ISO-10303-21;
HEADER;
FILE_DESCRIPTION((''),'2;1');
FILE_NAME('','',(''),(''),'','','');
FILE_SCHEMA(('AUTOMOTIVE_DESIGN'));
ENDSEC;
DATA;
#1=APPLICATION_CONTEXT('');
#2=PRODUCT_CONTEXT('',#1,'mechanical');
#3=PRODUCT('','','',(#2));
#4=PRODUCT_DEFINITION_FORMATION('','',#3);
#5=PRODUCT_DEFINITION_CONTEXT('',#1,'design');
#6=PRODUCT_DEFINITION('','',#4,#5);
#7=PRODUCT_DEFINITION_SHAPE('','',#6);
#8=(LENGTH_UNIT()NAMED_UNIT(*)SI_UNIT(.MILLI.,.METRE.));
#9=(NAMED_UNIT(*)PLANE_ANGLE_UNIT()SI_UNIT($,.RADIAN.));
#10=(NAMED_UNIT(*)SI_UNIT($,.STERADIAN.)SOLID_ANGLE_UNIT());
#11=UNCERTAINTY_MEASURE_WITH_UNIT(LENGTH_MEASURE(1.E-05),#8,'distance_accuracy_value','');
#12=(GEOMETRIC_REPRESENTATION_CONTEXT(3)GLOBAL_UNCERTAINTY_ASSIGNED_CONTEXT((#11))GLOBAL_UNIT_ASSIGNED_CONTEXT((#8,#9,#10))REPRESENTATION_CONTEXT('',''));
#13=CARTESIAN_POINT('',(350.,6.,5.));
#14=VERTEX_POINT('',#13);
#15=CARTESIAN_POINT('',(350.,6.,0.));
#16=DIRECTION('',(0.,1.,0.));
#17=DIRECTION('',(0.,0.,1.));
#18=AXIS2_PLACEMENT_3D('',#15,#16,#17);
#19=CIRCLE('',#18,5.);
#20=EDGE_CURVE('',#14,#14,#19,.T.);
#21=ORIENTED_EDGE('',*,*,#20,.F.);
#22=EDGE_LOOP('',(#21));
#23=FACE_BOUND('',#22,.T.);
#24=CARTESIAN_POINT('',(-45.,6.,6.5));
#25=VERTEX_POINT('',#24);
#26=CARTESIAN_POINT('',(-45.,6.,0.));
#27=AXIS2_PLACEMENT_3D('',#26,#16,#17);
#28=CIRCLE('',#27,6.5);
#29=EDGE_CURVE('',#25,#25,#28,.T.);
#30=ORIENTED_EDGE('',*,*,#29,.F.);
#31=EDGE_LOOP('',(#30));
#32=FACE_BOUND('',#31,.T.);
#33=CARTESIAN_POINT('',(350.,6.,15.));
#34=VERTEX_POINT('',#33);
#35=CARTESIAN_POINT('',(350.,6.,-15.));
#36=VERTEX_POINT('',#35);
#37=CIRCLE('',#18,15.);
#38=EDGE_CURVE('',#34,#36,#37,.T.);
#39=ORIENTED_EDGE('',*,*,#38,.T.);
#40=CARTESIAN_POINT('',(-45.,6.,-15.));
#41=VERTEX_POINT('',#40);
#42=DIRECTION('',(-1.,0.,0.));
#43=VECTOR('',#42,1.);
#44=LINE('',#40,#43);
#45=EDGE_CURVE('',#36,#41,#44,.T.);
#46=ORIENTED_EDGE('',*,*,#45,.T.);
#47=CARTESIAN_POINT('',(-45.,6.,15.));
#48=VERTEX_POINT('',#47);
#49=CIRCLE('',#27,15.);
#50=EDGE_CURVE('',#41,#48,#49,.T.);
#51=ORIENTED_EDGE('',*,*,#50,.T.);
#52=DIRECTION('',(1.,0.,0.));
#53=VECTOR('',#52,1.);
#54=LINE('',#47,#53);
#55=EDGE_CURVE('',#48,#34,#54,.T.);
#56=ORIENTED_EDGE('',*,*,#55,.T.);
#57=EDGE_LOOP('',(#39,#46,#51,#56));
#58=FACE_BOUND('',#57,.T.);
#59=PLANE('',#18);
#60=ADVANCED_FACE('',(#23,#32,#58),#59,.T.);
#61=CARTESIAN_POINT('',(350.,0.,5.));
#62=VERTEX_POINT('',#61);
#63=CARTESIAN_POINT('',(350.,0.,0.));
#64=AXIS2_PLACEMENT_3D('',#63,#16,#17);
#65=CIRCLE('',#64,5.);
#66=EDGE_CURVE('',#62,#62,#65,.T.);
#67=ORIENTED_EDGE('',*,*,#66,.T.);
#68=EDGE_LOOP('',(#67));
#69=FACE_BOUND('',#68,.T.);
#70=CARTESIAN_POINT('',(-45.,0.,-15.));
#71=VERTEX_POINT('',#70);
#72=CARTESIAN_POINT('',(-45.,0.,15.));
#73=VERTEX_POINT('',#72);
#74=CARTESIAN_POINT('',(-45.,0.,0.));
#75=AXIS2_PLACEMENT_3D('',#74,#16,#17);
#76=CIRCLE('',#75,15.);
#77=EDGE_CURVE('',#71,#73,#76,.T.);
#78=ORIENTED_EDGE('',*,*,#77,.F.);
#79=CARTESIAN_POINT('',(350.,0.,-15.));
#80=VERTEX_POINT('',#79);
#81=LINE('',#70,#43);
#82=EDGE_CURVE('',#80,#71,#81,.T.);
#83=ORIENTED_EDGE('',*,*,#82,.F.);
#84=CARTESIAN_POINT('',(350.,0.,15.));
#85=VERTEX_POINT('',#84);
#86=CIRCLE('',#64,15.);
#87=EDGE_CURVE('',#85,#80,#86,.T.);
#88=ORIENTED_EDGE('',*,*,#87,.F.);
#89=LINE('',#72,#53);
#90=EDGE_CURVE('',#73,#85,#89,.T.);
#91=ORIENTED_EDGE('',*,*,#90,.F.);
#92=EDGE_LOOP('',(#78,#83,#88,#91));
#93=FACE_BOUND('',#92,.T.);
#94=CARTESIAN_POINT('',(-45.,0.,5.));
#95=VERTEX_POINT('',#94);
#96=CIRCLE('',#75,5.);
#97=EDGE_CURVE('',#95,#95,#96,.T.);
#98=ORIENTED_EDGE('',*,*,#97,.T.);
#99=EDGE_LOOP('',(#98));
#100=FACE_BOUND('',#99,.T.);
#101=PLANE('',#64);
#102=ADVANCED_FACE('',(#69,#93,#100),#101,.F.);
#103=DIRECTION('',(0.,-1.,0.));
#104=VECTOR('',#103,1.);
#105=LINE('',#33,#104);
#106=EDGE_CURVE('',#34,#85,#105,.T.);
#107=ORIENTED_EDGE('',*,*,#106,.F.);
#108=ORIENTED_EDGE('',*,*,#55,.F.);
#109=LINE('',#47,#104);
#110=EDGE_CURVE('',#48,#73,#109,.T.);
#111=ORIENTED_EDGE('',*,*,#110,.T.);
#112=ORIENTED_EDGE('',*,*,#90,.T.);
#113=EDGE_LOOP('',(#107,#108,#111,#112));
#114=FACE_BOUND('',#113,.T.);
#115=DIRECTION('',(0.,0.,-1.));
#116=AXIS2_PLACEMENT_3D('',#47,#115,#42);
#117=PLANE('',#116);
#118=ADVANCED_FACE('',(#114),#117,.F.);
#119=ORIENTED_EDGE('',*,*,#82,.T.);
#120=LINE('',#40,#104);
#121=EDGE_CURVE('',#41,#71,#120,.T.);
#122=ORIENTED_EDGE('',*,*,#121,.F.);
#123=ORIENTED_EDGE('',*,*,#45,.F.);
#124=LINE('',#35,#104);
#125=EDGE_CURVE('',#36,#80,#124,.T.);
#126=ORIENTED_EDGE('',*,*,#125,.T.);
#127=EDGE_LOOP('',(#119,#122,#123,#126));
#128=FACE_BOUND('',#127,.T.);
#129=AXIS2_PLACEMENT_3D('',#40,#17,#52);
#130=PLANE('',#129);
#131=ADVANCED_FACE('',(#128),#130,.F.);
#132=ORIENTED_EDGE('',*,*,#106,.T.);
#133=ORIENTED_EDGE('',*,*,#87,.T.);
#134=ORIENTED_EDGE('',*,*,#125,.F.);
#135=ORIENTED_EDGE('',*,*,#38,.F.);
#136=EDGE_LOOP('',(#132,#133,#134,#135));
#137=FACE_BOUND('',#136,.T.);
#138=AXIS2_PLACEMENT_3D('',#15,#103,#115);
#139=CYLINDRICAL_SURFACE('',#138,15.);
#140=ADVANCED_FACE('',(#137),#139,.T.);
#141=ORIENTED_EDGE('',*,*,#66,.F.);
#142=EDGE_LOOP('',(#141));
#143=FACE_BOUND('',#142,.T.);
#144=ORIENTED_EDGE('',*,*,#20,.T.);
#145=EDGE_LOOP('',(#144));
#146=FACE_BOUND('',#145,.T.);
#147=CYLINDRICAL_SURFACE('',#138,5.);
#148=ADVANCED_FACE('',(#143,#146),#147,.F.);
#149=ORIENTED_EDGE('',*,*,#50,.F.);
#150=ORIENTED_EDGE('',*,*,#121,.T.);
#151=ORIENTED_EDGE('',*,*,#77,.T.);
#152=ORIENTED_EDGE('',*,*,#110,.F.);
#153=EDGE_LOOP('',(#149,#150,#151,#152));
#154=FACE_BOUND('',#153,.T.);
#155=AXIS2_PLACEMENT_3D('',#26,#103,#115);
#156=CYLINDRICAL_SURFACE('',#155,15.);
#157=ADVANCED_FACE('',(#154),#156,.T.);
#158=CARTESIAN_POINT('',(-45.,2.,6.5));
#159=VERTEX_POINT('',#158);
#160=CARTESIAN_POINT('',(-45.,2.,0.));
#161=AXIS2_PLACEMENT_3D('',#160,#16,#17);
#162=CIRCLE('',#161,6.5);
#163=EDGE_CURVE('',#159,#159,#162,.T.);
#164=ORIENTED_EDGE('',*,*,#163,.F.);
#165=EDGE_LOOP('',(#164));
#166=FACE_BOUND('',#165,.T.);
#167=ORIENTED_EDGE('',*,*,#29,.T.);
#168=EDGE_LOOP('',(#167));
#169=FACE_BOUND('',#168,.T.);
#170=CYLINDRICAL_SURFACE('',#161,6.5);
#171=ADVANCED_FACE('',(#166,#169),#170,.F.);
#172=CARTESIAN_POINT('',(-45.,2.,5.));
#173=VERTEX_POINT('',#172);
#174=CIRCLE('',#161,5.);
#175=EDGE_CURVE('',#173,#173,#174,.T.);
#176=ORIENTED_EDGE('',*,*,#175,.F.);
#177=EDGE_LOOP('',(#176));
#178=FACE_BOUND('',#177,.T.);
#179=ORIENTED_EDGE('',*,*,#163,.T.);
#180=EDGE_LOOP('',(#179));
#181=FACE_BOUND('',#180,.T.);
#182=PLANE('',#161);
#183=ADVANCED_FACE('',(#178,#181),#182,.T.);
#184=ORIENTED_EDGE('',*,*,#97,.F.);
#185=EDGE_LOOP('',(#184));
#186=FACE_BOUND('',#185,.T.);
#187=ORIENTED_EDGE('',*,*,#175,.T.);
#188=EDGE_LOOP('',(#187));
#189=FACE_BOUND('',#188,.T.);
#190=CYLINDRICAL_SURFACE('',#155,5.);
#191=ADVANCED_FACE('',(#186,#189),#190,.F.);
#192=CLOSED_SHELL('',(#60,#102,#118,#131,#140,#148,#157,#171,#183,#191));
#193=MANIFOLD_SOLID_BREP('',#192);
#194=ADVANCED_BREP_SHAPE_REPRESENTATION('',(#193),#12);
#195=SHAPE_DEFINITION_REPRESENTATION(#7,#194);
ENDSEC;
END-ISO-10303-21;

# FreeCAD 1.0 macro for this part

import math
import FreeCAD as App
import Part
import Sketcher
Q = App.Units.Quantity

doc = App.newDocument("Part")
params = doc.addObject("Spreadsheet::Sheet", "Params")
for row, (alias, value) in enumerate([
    ("sketch1_diameter", "10 mm"),
    ("sketch1_radius", "15 mm"),
    ("sketch1_width", "395 mm"),
    ("pad1_length", "6 mm"),
    ("sketch2_diameter", "13 mm"),
    ("pocket1_length", "4 mm"),
], start=1):
    params.set(f"A{row}", alias)
    params.set(f"B{row}", "=" + value)
    params.setAlias(f"B{row}", alias)

body = doc.addObject("PartDesign::Body", "Body")

# Sketch on XZ plane
sketch1 = body.newObject("Sketcher::SketchObject", "Sketch")
sketch1.AttachmentSupport = (doc.getObject("XZ_Plane"), [""])
sketch1.MapMode = "FlatFace"
sketch1.addGeometry(Part.LineSegment(App.Vector(350, -15, 0), App.Vector(-45, -15, 0)), False)
sketch1.addGeometry(Part.ArcOfCircle(Part.Circle(App.Vector(-45, 0, 0), App.Vector(0, 0, 1), 15), math.radians(90), math.radians(270)), False)
sketch1.addGeometry(Part.LineSegment(App.Vector(-45, 15, 0), App.Vector(350, 15, 0)), False)
sketch1.addGeometry(Part.ArcOfCircle(Part.Circle(App.Vector(350, 0, 0), App.Vector(0, 0, 1), 15), math.radians(-90), math.radians(90)), False)
sketch1.addGeometry(Part.Circle(App.Vector(350, 0, 0), App.Vector(0, 0, 1), 5), False)
sketch1.addGeometry(Part.Circle(App.Vector(-45, 0, 0), App.Vector(0, 0, 1), 5), False)
sketch1.addConstraint(Sketcher.Constraint("Tangent", 0, 2, 1, 2))
sketch1.addConstraint(Sketcher.Constraint("Tangent", 1, 1, 2, 1))
sketch1.addConstraint(Sketcher.Constraint("Tangent", 2, 2, 3, 2))
sketch1.addConstraint(Sketcher.Constraint("Tangent", 3, 1, 0, 1))
sketch1.addConstraint(Sketcher.Constraint("Horizontal", 0))
sketch1.addConstraint(Sketcher.Constraint("Horizontal", 2))
sketch1.addConstraint(Sketcher.Constraint("Coincident", 4, 3, 3, 3))
sketch1.addConstraint(Sketcher.Constraint("Coincident", 5, 3, 1, 3))
sketch1.addConstraint(Sketcher.Constraint("Equal", 4, 5))
sketch1.addConstraint(Sketcher.Constraint("PointOnObject", 1, 3, -1))
sketch1.addConstraint(Sketcher.Constraint("Diameter", 4, Q("10 mm")))
sketch1.addConstraint(Sketcher.Constraint("Radius", 1, Q("15 mm")))
sketch1.addConstraint(Sketcher.Constraint("DistanceX", 0, 2, 0, 1, Q("395 mm")))
sketch1.addConstraint(Sketcher.Constraint("DistanceX", 1, 3, -1, 1, Q("45 mm")))
sketch1.setExpression("Constraints[10]", "Params.sketch1_diameter")
sketch1.setExpression("Constraints[11]", "Params.sketch1_radius")
sketch1.setExpression("Constraints[12]", "Params.sketch1_width")
pad1 = body.newObject("PartDesign::Pad", "Pad")
pad1.Profile = sketch1
pad1.setExpression("Length", "Params.pad1_length")
pad1.Reversed = True

# Sketch on XZ plane
sketch2 = body.newObject("Sketcher::SketchObject", "Sketch001")
sketch2.AttachmentSupport = (doc.getObject("XZ_Plane"), [""])
sketch2.MapMode = "FlatFace"
sketch2.AttachmentOffset = App.Placement(App.Vector(0, 0, -6), App.Rotation())
sketch2.addGeometry(Part.Circle(App.Vector(-45, 0, 0), App.Vector(0, 0, 1), 6.5), False)
sketch2.addConstraint(Sketcher.Constraint("PointOnObject", 0, 3, -1))
sketch2.addConstraint(Sketcher.Constraint("Diameter", 0, Q("13 mm")))
sketch2.addConstraint(Sketcher.Constraint("DistanceX", 0, 3, -1, 1, Q("45 mm")))
sketch2.setExpression("Constraints[1]", "Params.sketch2_diameter")
pocket1 = body.newObject("PartDesign::Pocket", "Pocket")
pocket1.Profile = sketch2
pocket1.setExpression("Length", "Params.pocket1_length")
pocket1.Reversed = True

doc.recompute()
